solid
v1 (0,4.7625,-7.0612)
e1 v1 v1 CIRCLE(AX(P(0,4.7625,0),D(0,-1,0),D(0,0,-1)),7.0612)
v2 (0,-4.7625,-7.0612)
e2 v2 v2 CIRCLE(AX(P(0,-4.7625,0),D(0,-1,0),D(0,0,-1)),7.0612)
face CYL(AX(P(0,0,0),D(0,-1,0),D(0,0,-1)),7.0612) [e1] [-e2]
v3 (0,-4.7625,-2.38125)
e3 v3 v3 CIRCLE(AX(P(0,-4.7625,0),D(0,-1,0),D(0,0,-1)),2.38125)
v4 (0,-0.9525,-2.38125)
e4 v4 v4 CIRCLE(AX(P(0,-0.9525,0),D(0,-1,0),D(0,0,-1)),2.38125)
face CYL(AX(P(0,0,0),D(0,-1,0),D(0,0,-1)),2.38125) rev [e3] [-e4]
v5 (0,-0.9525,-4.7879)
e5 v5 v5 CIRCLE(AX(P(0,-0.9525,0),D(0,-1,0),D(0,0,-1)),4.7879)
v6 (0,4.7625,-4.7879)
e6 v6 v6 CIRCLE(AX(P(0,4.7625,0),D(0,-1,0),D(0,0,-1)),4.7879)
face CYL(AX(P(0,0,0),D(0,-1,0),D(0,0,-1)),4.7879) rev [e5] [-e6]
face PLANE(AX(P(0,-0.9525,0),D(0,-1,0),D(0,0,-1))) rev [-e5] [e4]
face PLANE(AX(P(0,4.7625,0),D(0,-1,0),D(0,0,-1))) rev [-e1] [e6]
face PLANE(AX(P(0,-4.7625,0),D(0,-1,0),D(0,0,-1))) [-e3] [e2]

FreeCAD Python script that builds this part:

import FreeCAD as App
import Part
import Sketcher

V = App.Vector
Q = App.Units.Quantity


def add_polygon(sketch, points):
    """Adds a closed chain of lines whose ends are joined by coincident constraints."""
    first, n = sketch.GeometryCount, len(points)
    for a, b in zip(points, points[1:] + points[:1]):
        sketch.addGeometry(Part.LineSegment(App.Vector(*a, 0), App.Vector(*b, 0)), False)
    for i in range(n):
        sketch.addConstraint(Sketcher.Constraint("Coincident", first + i, 2, first + (i + 1) % n, 1))

doc = App.newDocument("Part")
body = doc.addObject("PartDesign::Body", "Body")

# Sketch on XY plane
sketch1 = body.newObject("Sketcher::SketchObject", "Sketch")
sketch1.AttachmentSupport = (doc.getObject("XY_Plane"), [""])
sketch1.MapMode = "FlatFace"
add_polygon(sketch1, [(2.38125, -0.9525), (2.38125, -4.7625), (7.0612, -4.7625), (7.0612, 4.7625), (4.7879, 4.7625), (4.7879, -0.9525)])  # lines 0-5
sketch1.addConstraint([
    Sketcher.Constraint("Vertical", 0),
    Sketcher.Constraint("Horizontal", 1),
    Sketcher.Constraint("Vertical", 2),
    Sketcher.Constraint("Horizontal", 3),
    Sketcher.Constraint("Vertical", 4),
    Sketcher.Constraint("Horizontal", 5),
    Sketcher.Constraint("DistanceY", 0, 2, 0, 1, Q("0.15 in")),
    Sketcher.Constraint("DistanceY", 2, 1, 2, 2, Q("0.375 in")),
    Sketcher.Constraint("DistanceX", 3, 2, 3, 1, Q("0.0895 in")),
    Sketcher.Constraint("DistanceX", -1, 1, 0, 2, Q("0.09375 in")),
    Sketcher.Constraint("DistanceY", 0, 2, -1, 1, Q("0.1875 in")),
    Sketcher.Constraint("DistanceX", -1, 1, 1, 2, Q("0.278 in")),
])
revolution = body.newObject("PartDesign::Revolution", "Revolution")
revolution.Profile = sketch1
revolution.ReferenceAxis = (sketch1, ["V_Axis"])
revolution.Angle = 360

doc.recompute()
